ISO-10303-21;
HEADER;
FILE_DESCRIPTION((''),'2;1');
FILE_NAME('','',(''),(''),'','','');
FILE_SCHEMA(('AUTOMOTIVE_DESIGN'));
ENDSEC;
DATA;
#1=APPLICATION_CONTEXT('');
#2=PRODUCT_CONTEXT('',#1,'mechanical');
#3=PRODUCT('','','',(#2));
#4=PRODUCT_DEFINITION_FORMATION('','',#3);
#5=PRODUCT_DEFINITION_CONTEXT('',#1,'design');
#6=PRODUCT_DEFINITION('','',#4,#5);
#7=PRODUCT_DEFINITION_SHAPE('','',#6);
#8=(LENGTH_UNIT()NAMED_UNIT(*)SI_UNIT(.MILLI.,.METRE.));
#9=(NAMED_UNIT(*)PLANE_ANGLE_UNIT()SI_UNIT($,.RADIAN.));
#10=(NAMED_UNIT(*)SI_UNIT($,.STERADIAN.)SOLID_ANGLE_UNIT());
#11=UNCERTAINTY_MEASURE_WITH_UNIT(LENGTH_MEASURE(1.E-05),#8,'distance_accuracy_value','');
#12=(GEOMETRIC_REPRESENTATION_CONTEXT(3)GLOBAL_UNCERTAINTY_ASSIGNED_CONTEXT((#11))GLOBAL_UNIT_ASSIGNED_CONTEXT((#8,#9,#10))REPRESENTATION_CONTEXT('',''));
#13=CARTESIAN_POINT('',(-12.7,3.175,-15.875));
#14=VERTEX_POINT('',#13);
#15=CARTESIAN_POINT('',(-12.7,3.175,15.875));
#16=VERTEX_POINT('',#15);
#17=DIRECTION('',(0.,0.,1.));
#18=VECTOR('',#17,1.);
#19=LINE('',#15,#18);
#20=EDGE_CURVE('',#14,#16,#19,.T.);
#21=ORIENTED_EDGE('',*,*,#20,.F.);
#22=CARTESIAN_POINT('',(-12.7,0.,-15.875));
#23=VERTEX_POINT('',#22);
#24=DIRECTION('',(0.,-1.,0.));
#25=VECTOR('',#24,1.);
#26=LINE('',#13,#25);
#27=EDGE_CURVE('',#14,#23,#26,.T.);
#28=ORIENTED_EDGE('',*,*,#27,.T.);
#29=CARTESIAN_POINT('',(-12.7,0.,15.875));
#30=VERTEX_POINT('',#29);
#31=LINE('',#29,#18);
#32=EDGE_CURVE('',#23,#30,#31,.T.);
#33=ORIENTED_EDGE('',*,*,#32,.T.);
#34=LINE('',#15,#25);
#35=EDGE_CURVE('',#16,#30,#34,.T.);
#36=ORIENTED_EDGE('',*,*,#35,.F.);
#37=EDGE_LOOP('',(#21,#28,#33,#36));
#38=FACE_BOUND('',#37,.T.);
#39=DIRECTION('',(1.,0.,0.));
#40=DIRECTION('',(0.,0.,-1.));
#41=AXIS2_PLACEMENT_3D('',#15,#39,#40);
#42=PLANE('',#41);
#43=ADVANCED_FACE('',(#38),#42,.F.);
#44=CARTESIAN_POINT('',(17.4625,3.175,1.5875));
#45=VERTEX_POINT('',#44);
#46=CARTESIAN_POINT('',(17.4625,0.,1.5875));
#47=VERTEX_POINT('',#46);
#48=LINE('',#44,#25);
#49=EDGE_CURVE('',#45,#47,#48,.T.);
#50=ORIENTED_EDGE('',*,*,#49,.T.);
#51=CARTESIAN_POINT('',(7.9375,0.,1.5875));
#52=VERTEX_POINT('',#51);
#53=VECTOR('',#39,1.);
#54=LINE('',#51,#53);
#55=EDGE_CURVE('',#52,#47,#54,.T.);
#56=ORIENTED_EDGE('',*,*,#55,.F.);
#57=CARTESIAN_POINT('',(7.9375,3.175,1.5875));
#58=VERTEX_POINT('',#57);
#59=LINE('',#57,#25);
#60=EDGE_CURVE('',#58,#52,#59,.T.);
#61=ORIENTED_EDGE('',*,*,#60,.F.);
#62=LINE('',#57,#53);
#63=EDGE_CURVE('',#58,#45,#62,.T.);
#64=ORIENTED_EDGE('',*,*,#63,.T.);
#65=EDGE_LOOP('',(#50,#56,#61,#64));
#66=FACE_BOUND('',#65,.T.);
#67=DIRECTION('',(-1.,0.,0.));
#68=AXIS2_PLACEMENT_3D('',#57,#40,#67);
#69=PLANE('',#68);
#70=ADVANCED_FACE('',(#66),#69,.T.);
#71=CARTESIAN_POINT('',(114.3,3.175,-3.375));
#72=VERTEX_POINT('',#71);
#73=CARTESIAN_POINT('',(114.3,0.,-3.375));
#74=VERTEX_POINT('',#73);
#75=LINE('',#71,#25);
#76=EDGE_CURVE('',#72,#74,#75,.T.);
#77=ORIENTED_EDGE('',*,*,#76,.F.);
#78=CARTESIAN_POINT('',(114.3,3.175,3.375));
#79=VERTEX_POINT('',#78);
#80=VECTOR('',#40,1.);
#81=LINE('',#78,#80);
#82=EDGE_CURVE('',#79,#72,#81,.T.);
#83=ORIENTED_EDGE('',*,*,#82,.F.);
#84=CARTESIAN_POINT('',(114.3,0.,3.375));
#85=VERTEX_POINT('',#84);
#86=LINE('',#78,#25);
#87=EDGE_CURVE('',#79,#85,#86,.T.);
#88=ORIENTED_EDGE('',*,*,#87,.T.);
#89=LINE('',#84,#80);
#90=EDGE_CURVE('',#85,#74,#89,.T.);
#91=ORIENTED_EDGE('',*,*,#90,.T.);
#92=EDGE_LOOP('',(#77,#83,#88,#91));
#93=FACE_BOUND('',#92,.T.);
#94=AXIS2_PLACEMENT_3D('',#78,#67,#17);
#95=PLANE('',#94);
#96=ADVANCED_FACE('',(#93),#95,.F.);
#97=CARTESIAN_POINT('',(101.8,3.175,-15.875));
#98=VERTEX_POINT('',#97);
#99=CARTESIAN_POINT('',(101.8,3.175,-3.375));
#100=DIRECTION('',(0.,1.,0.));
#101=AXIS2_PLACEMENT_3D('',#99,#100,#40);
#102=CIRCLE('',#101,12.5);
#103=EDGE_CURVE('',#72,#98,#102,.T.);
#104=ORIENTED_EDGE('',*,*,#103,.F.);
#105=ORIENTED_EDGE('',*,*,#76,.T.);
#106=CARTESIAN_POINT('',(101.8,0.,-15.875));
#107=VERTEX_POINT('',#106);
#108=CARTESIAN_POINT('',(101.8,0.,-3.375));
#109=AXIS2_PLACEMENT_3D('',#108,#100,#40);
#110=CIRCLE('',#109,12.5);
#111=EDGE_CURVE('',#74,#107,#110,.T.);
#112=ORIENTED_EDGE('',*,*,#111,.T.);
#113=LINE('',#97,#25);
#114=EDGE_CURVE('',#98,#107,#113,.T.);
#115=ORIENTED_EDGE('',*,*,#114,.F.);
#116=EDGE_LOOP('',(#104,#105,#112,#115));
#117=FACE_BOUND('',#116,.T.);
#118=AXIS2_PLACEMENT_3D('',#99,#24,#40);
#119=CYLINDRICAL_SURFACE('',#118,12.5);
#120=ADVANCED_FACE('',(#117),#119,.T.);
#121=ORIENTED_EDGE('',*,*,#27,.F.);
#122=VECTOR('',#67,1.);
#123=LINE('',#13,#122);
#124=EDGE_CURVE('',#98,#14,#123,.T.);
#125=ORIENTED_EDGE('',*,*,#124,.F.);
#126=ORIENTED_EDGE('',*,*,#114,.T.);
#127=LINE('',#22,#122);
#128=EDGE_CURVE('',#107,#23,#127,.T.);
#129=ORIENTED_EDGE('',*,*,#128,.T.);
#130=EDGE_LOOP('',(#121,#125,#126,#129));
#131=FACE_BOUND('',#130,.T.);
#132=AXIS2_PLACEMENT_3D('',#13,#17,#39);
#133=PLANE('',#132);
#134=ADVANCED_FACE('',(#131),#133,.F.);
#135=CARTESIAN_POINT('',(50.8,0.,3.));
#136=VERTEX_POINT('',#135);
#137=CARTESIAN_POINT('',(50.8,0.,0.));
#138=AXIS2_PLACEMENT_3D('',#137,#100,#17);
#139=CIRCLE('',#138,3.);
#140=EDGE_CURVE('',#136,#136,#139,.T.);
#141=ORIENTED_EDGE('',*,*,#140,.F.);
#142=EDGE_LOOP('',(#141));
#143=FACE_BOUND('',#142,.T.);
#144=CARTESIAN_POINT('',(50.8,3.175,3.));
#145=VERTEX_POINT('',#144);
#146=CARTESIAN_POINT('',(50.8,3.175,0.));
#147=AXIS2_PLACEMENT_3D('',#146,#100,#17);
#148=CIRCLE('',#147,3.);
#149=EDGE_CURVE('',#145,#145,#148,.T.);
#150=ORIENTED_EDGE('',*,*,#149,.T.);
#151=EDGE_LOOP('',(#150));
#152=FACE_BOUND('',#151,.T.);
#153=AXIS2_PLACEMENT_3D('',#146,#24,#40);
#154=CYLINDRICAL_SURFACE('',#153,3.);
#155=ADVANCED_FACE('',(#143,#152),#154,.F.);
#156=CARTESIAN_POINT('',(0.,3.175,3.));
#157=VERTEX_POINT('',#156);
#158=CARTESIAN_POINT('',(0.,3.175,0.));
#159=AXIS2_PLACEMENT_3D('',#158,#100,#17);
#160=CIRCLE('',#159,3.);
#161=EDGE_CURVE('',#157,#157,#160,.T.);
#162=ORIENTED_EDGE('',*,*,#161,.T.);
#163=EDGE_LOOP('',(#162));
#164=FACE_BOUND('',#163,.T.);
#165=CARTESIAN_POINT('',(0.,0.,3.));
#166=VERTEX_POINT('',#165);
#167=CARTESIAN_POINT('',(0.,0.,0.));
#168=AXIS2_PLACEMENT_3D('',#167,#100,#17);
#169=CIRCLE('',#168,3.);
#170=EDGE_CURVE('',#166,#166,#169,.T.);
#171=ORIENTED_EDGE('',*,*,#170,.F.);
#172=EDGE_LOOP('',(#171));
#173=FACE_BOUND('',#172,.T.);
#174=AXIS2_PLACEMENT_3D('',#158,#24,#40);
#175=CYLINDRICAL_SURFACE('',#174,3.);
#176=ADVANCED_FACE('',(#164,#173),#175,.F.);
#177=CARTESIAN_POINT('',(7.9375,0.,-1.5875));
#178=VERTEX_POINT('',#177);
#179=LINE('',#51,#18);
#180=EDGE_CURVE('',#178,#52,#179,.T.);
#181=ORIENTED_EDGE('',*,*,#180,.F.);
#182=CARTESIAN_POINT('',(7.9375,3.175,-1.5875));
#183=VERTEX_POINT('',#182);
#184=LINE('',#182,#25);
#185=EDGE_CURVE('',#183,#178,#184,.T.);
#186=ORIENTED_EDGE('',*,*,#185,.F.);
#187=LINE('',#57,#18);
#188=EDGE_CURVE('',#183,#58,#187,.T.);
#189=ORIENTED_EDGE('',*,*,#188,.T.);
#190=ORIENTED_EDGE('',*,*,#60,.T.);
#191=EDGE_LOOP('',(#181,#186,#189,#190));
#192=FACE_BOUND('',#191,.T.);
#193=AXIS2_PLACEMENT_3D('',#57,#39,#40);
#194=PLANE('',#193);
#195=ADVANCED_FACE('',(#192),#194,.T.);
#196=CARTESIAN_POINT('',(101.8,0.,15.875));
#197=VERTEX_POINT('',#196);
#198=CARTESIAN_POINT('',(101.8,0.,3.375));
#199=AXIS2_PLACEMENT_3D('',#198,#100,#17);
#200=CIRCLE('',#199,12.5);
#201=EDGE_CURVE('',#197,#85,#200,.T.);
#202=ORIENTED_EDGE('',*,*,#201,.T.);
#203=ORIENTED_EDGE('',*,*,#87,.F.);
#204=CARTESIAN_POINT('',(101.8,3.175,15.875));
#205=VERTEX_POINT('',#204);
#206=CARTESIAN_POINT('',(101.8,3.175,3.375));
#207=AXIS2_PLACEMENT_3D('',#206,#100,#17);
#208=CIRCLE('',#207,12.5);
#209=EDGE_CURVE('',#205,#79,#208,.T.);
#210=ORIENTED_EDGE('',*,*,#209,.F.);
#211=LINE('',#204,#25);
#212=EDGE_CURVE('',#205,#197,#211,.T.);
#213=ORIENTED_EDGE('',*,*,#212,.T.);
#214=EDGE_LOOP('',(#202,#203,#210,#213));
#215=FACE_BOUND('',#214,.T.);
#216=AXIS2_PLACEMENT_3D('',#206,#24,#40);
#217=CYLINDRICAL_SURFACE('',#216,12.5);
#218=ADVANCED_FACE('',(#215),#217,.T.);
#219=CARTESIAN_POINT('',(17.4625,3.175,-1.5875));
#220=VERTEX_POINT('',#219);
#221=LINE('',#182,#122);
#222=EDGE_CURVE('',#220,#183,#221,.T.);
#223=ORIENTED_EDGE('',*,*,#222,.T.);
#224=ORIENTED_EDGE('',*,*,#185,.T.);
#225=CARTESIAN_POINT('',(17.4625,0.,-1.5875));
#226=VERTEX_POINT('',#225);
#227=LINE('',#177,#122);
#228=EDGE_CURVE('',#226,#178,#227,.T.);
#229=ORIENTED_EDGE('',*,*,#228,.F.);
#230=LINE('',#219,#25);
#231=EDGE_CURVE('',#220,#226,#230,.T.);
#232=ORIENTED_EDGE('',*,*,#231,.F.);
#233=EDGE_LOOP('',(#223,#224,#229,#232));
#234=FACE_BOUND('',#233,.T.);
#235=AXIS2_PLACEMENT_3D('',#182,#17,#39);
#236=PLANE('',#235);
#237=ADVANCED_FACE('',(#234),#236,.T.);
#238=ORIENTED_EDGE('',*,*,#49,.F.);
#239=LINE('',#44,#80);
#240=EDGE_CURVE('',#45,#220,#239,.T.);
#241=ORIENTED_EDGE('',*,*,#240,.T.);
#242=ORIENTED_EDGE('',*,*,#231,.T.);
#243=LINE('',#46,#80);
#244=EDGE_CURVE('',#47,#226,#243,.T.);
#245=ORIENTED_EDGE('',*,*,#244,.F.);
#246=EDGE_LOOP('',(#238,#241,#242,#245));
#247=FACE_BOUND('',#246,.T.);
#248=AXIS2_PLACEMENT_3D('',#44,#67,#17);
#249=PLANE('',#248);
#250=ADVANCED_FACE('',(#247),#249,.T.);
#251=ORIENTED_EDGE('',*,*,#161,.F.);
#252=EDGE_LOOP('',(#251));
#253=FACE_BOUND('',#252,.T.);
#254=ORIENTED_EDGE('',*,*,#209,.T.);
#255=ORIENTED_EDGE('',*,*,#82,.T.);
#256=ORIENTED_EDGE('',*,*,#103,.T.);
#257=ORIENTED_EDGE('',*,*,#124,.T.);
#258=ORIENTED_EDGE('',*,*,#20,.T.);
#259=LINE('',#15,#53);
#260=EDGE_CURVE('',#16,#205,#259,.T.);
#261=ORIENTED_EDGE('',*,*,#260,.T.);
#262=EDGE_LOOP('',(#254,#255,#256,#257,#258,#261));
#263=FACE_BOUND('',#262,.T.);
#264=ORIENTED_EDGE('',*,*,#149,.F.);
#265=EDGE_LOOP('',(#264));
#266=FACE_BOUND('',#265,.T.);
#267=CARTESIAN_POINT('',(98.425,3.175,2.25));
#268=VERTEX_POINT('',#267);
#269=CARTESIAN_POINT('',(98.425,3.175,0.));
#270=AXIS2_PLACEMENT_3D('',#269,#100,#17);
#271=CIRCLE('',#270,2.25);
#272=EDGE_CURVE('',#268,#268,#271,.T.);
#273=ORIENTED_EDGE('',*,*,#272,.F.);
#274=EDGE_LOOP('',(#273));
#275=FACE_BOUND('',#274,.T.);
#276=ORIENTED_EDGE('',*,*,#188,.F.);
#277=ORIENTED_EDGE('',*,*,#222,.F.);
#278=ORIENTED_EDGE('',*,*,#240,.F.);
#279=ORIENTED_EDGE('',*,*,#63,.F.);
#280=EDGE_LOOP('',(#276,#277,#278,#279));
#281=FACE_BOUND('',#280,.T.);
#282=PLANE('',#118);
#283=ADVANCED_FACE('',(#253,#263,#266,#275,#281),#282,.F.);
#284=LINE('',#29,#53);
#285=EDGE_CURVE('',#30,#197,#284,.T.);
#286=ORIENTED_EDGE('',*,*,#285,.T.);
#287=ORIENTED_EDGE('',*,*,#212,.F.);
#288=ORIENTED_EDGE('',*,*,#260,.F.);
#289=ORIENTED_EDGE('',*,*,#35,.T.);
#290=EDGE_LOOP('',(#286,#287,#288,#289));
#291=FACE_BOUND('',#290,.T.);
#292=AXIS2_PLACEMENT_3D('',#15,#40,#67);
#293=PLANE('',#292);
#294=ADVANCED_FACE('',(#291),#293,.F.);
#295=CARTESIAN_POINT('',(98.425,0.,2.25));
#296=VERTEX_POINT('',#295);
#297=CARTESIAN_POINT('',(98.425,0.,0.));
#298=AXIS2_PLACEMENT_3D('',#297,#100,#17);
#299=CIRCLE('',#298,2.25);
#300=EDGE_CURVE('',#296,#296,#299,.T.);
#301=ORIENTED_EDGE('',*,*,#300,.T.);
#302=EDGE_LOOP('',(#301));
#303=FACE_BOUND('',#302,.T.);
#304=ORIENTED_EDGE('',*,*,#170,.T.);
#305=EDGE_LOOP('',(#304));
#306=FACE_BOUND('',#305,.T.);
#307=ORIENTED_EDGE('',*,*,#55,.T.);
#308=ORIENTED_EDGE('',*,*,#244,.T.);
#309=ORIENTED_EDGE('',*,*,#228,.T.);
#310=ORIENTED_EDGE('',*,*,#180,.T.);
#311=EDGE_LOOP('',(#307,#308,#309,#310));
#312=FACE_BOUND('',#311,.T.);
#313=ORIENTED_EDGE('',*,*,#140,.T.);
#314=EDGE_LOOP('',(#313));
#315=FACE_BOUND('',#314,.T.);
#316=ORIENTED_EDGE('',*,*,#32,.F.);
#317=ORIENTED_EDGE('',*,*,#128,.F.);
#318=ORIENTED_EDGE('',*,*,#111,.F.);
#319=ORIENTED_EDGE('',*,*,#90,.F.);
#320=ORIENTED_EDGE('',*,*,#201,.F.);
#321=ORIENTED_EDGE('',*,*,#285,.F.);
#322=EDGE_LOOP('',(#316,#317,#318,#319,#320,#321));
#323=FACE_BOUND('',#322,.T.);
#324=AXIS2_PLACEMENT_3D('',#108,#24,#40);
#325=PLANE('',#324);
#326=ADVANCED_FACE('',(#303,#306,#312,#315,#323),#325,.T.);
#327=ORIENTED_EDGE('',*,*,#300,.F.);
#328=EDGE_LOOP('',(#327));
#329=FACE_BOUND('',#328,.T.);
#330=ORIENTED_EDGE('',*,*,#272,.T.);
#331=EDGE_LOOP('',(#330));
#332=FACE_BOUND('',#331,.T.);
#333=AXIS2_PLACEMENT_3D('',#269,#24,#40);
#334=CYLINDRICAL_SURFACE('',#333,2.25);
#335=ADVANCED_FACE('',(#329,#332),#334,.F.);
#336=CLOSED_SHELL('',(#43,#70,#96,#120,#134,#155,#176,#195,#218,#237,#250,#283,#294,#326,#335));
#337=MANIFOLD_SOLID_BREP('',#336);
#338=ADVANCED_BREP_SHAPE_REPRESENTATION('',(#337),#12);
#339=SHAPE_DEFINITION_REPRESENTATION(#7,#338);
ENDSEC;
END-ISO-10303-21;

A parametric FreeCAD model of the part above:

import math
import FreeCAD as App
import Part
import Sketcher

doc = App.newDocument("Part")
body = doc.addObject("PartDesign::Body", "Body")

sketch1 = body.newObject("Sketcher::SketchObject", "Sketch")
sketch1.AttachmentSupport = (doc.getObject("XZ_Plane"), [""])
sketch1.MapMode = "FlatFace"
sketch1.addGeometry([
    Part.LineSegment(App.Vector(-12.7, 15.9, 0), App.Vector(101.8, 15.9, 0)),
    Part.ArcOfCircle(Part.Circle(App.Vector(101.8, 3.4, 0), App.Vector(0, 0, 1), 12.5), math.radians(0), math.radians(90)),
    Part.LineSegment(App.Vector(114.3, 3.4, 0), App.Vector(114.3, -3.4, 0)),
    Part.ArcOfCircle(Part.Circle(App.Vector(101.8, -3.4, 0), App.Vector(0, 0, 1), 12.5), math.radians(-90), math.radians(0)),
    Part.LineSegment(App.Vector(101.8, -15.9, 0), App.Vector(-12.7, -15.9, 0)),
    Part.LineSegment(App.Vector(-12.7, -15.9, 0), App.Vector(-12.7, 15.9, 0)),
    Part.Circle(App.Vector(0, 0, 0), App.Vector(0, 0, 1), 3),
    Part.LineSegment(App.Vector(17.5, 1.6, 0), App.Vector(7.9, 1.6, 0)),
    Part.LineSegment(App.Vector(7.9, 1.6, 0), App.Vector(7.9, -1.6, 0)),
    Part.LineSegment(App.Vector(7.9, -1.6, 0), App.Vector(17.5, -1.6, 0)),
    Part.LineSegment(App.Vector(17.5, -1.6, 0), App.Vector(17.5, 1.6, 0)),
    Part.Circle(App.Vector(50.8, 0, 0), App.Vector(0, 0, 1), 3),
    Part.Circle(App.Vector(98.4, 0, 0), App.Vector(0, 0, 1), 2.2),
], False)
sketch1.addConstraint([
    Sketcher.Constraint("Tangent", 0, 2, 1, 2),
    Sketcher.Constraint("Tangent", 1, 1, 2, 1),
    Sketcher.Constraint("Tangent", 2, 2, 3, 2),
    Sketcher.Constraint("Tangent", 3, 1, 4, 1),
    Sketcher.Constraint("Coincident", 4, 2, 5, 1),
    Sketcher.Constraint("Coincident", 5, 2, 0, 1),
    Sketcher.Constraint("Coincident", 7, 2, 8, 1),
    Sketcher.Constraint("Coincident", 8, 2, 9, 1),
    Sketcher.Constraint("Coincident", 9, 2, 10, 1),
    Sketcher.Constraint("Coincident", 10, 2, 7, 1),
    Sketcher.Constraint("Horizontal", 0),
    Sketcher.Constraint("Vertical", 2),
    Sketcher.Constraint("Horizontal", 4),
    Sketcher.Constraint("Vertical", 5),
    Sketcher.Constraint("Horizontal", 7),
    Sketcher.Constraint("Vertical", 8),
    Sketcher.Constraint("Horizontal", 9),
    Sketcher.Constraint("Vertical", 10),
    Sketcher.Constraint("Coincident", 6, 3, -1, 1),
    Sketcher.Constraint("Equal", 1, 3),
    Sketcher.Constraint("Equal", 6, 11),
    Sketcher.Constraint("PointOnObject", 11, 3, -1),
    Sketcher.Constraint("PointOnObject", 12, 3, -1),
    Sketcher.Constraint("Diameter", 6, 6.0),
    Sketcher.Constraint("Diameter", 12, 4.5),
    Sketcher.Constraint("Radius", 1, 12.5),
    Sketcher.Constraint("DistanceX", 0, 1, 0, 2, 114.5),
    Sketcher.Constraint("DistanceX", 11, 3, 1, 3, 51.0),
    Sketcher.Constraint("DistanceY", 2, 2, 2, 1, 6.75),
    Sketcher.Constraint("DistanceX", -1, 1, 1, 3, 101.8),
    Sketcher.Constraint("DistanceX", 7, 2, 7, 1, 9.525),
    Sketcher.Constraint("DistanceY", 8, 2, 8, 1, 3.175),
    Sketcher.Constraint("DistanceY", -1, 1, 1, 3, 3.375),
    Sketcher.Constraint("DistanceX", -1, 1, 12, 3, 98.425),
    Sketcher.Constraint("DistanceX", -1, 1, 7, 2, 7.9375),
    Sketcher.Constraint("DistanceY", -1, 1, 7, 2, 1.5875),
])
pad1 = body.newObject("PartDesign::Pad", "Pad")
pad1.Profile = sketch1
pad1.Length = 3.175
pad1.Reversed = True

doc.recompute()
